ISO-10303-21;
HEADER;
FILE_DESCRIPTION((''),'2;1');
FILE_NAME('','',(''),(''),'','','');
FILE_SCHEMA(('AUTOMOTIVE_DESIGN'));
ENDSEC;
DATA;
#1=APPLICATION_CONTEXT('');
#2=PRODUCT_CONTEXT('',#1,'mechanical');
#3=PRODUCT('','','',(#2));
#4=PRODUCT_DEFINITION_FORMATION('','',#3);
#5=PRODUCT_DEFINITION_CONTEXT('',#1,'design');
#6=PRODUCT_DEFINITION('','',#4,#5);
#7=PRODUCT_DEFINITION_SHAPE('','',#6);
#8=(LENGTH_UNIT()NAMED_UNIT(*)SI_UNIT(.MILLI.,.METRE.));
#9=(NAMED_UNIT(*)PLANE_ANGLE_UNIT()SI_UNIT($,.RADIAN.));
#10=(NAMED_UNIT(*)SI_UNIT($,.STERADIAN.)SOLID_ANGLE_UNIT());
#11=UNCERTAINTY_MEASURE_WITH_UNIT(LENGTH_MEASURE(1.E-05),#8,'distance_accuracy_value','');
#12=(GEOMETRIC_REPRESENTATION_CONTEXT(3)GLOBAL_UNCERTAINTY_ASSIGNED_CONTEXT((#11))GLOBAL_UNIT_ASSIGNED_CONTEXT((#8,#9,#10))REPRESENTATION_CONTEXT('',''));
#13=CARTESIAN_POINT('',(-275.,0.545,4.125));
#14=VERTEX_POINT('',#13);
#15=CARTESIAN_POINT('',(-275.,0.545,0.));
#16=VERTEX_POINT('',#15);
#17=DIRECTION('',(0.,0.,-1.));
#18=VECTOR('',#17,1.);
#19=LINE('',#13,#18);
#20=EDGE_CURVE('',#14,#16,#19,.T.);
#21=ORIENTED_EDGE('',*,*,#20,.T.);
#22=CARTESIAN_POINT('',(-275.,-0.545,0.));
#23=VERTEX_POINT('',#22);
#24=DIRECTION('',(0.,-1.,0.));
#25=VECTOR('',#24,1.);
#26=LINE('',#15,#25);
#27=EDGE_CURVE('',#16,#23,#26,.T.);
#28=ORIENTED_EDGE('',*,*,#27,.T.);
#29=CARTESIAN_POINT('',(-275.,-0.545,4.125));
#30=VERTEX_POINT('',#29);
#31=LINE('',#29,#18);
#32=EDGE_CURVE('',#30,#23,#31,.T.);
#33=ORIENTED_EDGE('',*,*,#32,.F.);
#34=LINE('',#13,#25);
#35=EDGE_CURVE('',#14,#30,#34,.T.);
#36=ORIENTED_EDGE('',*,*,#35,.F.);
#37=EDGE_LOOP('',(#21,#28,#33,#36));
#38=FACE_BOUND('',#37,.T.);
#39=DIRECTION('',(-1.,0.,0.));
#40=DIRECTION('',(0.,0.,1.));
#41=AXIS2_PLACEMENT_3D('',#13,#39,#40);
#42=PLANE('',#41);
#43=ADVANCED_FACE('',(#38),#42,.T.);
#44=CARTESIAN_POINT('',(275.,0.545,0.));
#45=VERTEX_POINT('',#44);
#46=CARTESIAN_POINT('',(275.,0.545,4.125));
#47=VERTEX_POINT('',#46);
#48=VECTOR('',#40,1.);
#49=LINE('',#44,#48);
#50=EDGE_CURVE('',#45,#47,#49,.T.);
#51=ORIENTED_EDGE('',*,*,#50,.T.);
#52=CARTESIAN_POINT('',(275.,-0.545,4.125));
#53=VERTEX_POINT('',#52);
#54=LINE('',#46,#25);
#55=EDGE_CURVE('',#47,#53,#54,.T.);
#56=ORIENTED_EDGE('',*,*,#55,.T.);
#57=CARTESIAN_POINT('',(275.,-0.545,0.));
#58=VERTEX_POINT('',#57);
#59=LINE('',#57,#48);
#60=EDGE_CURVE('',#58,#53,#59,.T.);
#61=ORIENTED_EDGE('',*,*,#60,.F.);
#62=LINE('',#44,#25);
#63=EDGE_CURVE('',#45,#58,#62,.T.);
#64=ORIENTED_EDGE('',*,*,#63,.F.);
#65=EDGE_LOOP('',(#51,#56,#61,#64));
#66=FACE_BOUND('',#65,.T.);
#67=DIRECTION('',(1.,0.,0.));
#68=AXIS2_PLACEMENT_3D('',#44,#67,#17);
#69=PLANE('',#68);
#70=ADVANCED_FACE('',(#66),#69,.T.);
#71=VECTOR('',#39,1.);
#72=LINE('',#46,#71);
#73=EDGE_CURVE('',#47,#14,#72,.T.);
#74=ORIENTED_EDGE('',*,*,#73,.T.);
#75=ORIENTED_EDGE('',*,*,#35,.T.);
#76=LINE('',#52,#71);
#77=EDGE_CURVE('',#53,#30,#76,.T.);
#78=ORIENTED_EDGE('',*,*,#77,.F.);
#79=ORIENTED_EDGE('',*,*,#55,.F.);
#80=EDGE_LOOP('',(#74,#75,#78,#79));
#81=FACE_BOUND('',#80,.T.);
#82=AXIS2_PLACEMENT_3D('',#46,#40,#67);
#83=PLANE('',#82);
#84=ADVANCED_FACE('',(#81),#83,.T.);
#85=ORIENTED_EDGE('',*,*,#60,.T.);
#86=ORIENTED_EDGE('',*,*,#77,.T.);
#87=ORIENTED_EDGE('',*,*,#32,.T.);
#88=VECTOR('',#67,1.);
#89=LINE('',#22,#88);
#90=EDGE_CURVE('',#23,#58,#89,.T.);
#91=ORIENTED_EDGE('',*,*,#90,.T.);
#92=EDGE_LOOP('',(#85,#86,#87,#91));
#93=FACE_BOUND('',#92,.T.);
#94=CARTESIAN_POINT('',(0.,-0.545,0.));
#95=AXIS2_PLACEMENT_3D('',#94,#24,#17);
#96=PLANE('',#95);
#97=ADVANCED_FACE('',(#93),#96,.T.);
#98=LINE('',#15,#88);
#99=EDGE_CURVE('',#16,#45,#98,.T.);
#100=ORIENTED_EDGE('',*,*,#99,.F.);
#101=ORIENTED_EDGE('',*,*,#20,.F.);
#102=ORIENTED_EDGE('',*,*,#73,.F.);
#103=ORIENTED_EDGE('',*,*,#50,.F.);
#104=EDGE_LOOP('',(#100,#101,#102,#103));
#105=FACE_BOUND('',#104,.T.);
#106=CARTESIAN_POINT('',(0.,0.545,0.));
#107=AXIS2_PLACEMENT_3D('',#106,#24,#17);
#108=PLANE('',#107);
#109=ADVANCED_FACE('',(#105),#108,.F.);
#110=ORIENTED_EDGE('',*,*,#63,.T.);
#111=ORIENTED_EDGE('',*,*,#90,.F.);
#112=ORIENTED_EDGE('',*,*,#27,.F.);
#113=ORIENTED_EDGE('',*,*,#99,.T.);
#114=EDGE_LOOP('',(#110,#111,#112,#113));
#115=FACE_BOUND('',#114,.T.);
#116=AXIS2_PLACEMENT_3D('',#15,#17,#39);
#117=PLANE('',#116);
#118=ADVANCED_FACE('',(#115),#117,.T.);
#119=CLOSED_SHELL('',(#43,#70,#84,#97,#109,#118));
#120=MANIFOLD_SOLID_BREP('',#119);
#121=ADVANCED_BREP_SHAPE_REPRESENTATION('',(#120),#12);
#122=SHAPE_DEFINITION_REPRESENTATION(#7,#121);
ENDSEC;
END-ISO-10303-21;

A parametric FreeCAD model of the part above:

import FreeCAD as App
import Part
import Sketcher


def add_polygon(sketch, points):
    """Adds a closed chain of lines whose ends are joined by coincident constraints."""
    first, n = sketch.GeometryCount, len(points)
    for a, b in zip(points, points[1:] + points[:1]):
        sketch.addGeometry(Part.LineSegment(App.Vector(*a, 0), App.Vector(*b, 0)), False)
    for i in range(n):
        sketch.addConstraint(Sketcher.Constraint("Coincident", first + i, 2, first + (i + 1) % n, 1))

doc = App.newDocument("Part")
body = doc.addObject("PartDesign::Body", "Body")

sketch1 = body.newObject("Sketcher::SketchObject", "Sketch")
sketch1.AttachmentSupport = (doc.getObject("XZ_Plane"), [""])
sketch1.MapMode = "FlatFace"
sketch1.AttachmentOffset = App.Placement(App.Vector(0, 0, 0.545), App.Rotation())
add_polygon(sketch1, [(-275, 4.1), (-275, 0), (275, 0), (275, 4.1)])
sketch1.addConstraint([
    Sketcher.Constraint("Vertical", 0),
    Sketcher.Constraint("Horizontal", 1),
    Sketcher.Constraint("Vertical", 2),
    Sketcher.Constraint("Horizontal", 3),
    Sketcher.Constraint("Symmetric", 0, 2, 1, 2, -1, 1),
    Sketcher.Constraint("DistanceX", 1, 1, 1, 2, 550.0),
    Sketcher.Constraint("DistanceY", 0, 2, 0, 1, 4.125),
])
pad1 = body.newObject("PartDesign::Pad", "Pad")
pad1.Profile = sketch1
pad1.Length = 1.09
pad1.Reversed = True

doc.recompute()
